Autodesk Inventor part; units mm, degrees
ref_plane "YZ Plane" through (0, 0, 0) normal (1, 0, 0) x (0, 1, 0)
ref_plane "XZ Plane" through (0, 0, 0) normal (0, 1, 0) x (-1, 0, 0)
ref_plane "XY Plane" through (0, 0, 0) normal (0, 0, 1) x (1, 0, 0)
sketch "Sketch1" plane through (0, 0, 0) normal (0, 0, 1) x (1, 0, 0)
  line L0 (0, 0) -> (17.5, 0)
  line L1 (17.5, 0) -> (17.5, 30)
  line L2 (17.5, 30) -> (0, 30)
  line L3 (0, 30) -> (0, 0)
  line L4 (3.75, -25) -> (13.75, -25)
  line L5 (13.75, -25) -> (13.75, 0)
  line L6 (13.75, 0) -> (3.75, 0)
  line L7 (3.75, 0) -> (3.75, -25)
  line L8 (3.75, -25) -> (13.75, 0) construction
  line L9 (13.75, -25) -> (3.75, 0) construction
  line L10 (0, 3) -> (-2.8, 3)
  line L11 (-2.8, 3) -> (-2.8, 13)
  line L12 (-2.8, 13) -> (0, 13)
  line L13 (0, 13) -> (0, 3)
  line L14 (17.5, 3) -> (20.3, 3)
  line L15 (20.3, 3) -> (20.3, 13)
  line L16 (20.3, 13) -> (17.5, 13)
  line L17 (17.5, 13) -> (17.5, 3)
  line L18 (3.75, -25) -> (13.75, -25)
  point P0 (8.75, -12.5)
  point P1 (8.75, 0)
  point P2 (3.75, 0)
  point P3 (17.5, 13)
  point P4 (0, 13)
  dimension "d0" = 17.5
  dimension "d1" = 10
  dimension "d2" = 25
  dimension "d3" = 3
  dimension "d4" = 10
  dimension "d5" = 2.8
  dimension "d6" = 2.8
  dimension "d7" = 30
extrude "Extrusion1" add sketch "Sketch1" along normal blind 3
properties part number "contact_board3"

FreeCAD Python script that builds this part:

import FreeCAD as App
import Part
import Sketcher
Q = App.Units.Quantity

doc = App.newDocument("Part")
body = doc.addObject("PartDesign::Body", "Body")

sketch1 = doc.addObject("Sketcher::SketchObject", "Sketch")
body.addObject(sketch1)
sketch1.AttachmentSupport = (doc.XY_Plane, [""])
sketch1.MapMode = "FlatFace"
sketch1.addGeometry(Part.LineSegment(App.Vector(0, 3, 0), App.Vector(0, 0, 0)), False)
sketch1.addGeometry(Part.LineSegment(App.Vector(0, 0, 0), App.Vector(3.8, 0, 0)), False)
sketch1.addGeometry(Part.LineSegment(App.Vector(3.8, 0, 0), App.Vector(3.8, -25, 0)), False)
sketch1.addGeometry(Part.LineSegment(App.Vector(3.8, -25, 0), App.Vector(13.8, -25, 0)), False)
sketch1.addGeometry(Part.LineSegment(App.Vector(13.8, -25, 0), App.Vector(13.8, 0, 0)), False)
sketch1.addGeometry(Part.LineSegment(App.Vector(13.8, 0, 0), App.Vector(17.5, 0, 0)), False)
sketch1.addGeometry(Part.LineSegment(App.Vector(17.5, 0, 0), App.Vector(17.5, 3, 0)), False)
sketch1.addGeometry(Part.LineSegment(App.Vector(17.5, 3, 0), App.Vector(20.3, 3, 0)), False)
sketch1.addGeometry(Part.LineSegment(App.Vector(20.3, 3, 0), App.Vector(20.3, 13, 0)), False)
sketch1.addGeometry(Part.LineSegment(App.Vector(20.3, 13, 0), App.Vector(17.5, 13, 0)), False)
sketch1.addGeometry(Part.LineSegment(App.Vector(17.5, 13, 0), App.Vector(17.5, 30, 0)), False)
sketch1.addGeometry(Part.LineSegment(App.Vector(17.5, 30, 0), App.Vector(0, 30, 0)), False)
sketch1.addGeometry(Part.LineSegment(App.Vector(0, 30, 0), App.Vector(0, 13, 0)), False)
sketch1.addGeometry(Part.LineSegment(App.Vector(0, 13, 0), App.Vector(-2.8, 13, 0)), False)
sketch1.addGeometry(Part.LineSegment(App.Vector(-2.8, 13, 0), App.Vector(-2.8, 3, 0)), False)
sketch1.addGeometry(Part.LineSegment(App.Vector(-2.8, 3, 0), App.Vector(0, 3, 0)), False)
sketch1.addConstraint(Sketcher.Constraint("Coincident", 0, 2, 1, 1))
sketch1.addConstraint(Sketcher.Constraint("Coincident", 1, 2, 2, 1))
sketch1.addConstraint(Sketcher.Constraint("Coincident", 2, 2, 3, 1))
sketch1.addConstraint(Sketcher.Constraint("Coincident", 3, 2, 4, 1))
sketch1.addConstraint(Sketcher.Constraint("Coincident", 4, 2, 5, 1))
sketch1.addConstraint(Sketcher.Constraint("Coincident", 5, 2, 6, 1))
sketch1.addConstraint(Sketcher.Constraint("Coincident", 6, 2, 7, 1))
sketch1.addConstraint(Sketcher.Constraint("Coincident", 7, 2, 8, 1))
sketch1.addConstraint(Sketcher.Constraint("Coincident", 8, 2, 9, 1))
sketch1.addConstraint(Sketcher.Constraint("Coincident", 9, 2, 10, 1))
sketch1.addConstraint(Sketcher.Constraint("Coincident", 10, 2, 11, 1))
sketch1.addConstraint(Sketcher.Constraint("Coincident", 11, 2, 12, 1))
sketch1.addConstraint(Sketcher.Constraint("Coincident", 12, 2, 13, 1))
sketch1.addConstraint(Sketcher.Constraint("Coincident", 13, 2, 14, 1))
sketch1.addConstraint(Sketcher.Constraint("Coincident", 14, 2, 15, 1))
sketch1.addConstraint(Sketcher.Constraint("Coincident", 15, 2, 0, 1))
sketch1.addConstraint(Sketcher.Constraint("Vertical", 0))
sketch1.addConstraint(Sketcher.Constraint("Horizontal", 1))
sketch1.addConstraint(Sketcher.Constraint("Vertical", 2))
sketch1.addConstraint(Sketcher.Constraint("Horizontal", 3))
sketch1.addConstraint(Sketcher.Constraint("Vertical", 4))
sketch1.addConstraint(Sketcher.Constraint("Horizontal", 5))
sketch1.addConstraint(Sketcher.Constraint("Vertical", 6))
sketch1.addConstraint(Sketcher.Constraint("Horizontal", 7))
sketch1.addConstraint(Sketcher.Constraint("Vertical", 8))
sketch1.addConstraint(Sketcher.Constraint("Horizontal", 9))
sketch1.addConstraint(Sketcher.Constraint("Vertical", 10))
sketch1.addConstraint(Sketcher.Constraint("Horizontal", 11))
sketch1.addConstraint(Sketcher.Constraint("Vertical", 12))
sketch1.addConstraint(Sketcher.Constraint("Horizontal", 13))
sketch1.addConstraint(Sketcher.Constraint("Vertical", 14))
sketch1.addConstraint(Sketcher.Constraint("Horizontal", 15))
sketch1.addConstraint(Sketcher.Constraint("Coincident", 0, 2, -1, 1))
sketch1.addConstraint(Sketcher.Constraint("PointOnObject", 4, 2, -1))
sketch1.addConstraint(Sketcher.Constraint("PointOnObject", 11, 2, -2))
sketch1.addConstraint(Sketcher.Constraint("Horizontal", 9, 2, 12, 2))
sketch1.addConstraint(Sketcher.Constraint("Horizontal", 7, 2, 14, 2))
sketch1.addConstraint(Sketcher.Constraint("Vertical", 6, 2, 9, 2))
sketch1.addConstraint(Sketcher.Constraint("Equal", 1, 5))
sketch1.addConstraint(Sketcher.Constraint("Equal", 9, 13))
sketch1.addConstraint(Sketcher.Constraint("Equal", 3, 8))
sketch1.addConstraint(Sketcher.Constraint("DistanceX", 3, 1, 3, 2, Q("10 mm")))
sketch1.addConstraint(Sketcher.Constraint("DistanceY", 0, 2, 0, 1, Q("3 mm")))
sketch1.addConstraint(Sketcher.Constraint("DistanceY", 2, 2, 2, 1, Q("25 mm")))
sketch1.addConstraint(Sketcher.Constraint("DistanceX", 7, 1, 7, 2, Q("2.8 mm")))
sketch1.addConstraint(Sketcher.Constraint("DistanceX", 11, 2, 11, 1, Q("17.5 mm")))
sketch1.addConstraint(Sketcher.Constraint("DistanceY", -1, 1, 10, 2, Q("30 mm")))
pad1 = doc.addObject("PartDesign::Pad", "Pad")
body.addObject(pad1)
pad1.Profile = sketch1
pad1.Length = 3

doc.recompute()
